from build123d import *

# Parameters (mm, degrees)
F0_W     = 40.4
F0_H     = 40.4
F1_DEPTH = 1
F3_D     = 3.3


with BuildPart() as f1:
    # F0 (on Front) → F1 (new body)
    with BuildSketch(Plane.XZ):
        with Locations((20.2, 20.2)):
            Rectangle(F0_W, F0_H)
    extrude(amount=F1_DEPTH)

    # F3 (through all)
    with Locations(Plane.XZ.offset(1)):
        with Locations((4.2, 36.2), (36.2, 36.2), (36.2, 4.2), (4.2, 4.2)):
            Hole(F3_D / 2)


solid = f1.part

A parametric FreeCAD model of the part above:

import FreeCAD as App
import Part
import Sketcher
from FreeCAD import Vector
Q = App.Units.Quantity

doc = App.newDocument("Part")
body = doc.addObject("PartDesign::Body", "Body")

# Sketch on XZ plane
sketch1 = body.newObject("Sketcher::SketchObject", "Sketch")
sketch1.AttachmentSupport = (doc.getObject("XZ_Plane"), [""])
sketch1.MapMode = "FlatFace"
sketch1.addGeometry([
    Part.LineSegment(Vector(0, 40, 0), Vector(0, 0, 0)),
    Part.LineSegment(Vector(0, 0, 0), Vector(40, 0, 0)),
    Part.LineSegment(Vector(40, 0, 0), Vector(40, 40, 0)),
    Part.LineSegment(Vector(40, 40, 0), Vector(0, 40, 0)),
], False)
sketch1.addConstraint([
    Sketcher.Constraint("Coincident", 0, 2, 1, 1),
    Sketcher.Constraint("Coincident", 1, 2, 2, 1),
    Sketcher.Constraint("Coincident", 2, 2, 3, 1),
    Sketcher.Constraint("Coincident", 3, 2, 0, 1),
    Sketcher.Constraint("Vertical", 0),
    Sketcher.Constraint("Horizontal", 1),
    Sketcher.Constraint("Vertical", 2),
    Sketcher.Constraint("Horizontal", 3),
    Sketcher.Constraint("Coincident", 0, 2, -1, 1),
    Sketcher.Constraint("Equal", 3, 0),
    Sketcher.Constraint("DistanceX", 1, 1, 1, 2, Q("40.4 mm")),
])
pad1 = body.newObject("PartDesign::Pad", "Pad")
pad1.Profile = sketch1
pad1.Length = 1

# Sketch on XZ plane
sketch2 = body.newObject("Sketcher::SketchObject", "Sketch001")
sketch2.AttachmentSupport = (doc.getObject("XZ_Plane"), [""])
sketch2.MapMode = "FlatFace"
sketch2.AttachmentOffset = App.Placement(Vector(0, 0, 1), App.Rotation())
sketch2.addGeometry([
    Part.Circle(Vector(4.2, 36.2, 0), Vector(0, 0, 1), 1.6),
    Part.Circle(Vector(36.2, 36.2, 0), Vector(0, 0, 1), 1.6),
    Part.Circle(Vector(36.2, 4.2, 0), Vector(0, 0, 1), 1.6),
    Part.Circle(Vector(4.2, 4.2, 0), Vector(0, 0, 1), 1.6),
], False)
sketch2.addConstraint([
    Sketcher.Constraint("Equal", 0, 1),
    Sketcher.Constraint("Equal", 1, 2),
    Sketcher.Constraint("Equal", 2, 3),
    Sketcher.Constraint("Horizontal", 0, 3, 1, 3),
    Sketcher.Constraint("Horizontal", 2, 3, 3, 3),
    Sketcher.Constraint("Vertical", 1, 3, 2, 3),
    Sketcher.Constraint("Vertical", 0, 3, 3, 3),
    Sketcher.Constraint("Diameter", 0, Q("3.3 mm")),
    Sketcher.Constraint("DistanceX", 0, 3, 1, 3, Q("32 mm")),
    Sketcher.Constraint("DistanceY", 2, 3, 1, 3, Q("32 mm")),
    Sketcher.Constraint("DistanceX", -1, 1, 0, 3, Q("4.2 mm")),
    Sketcher.Constraint("DistanceY", -1, 1, 0, 3, Q("36.2 mm")),
])
doc.recompute()
hole = body.newObject("PartDesign::Hole", "Hole")
hole.Profile = sketch2
hole.ThreadType = "None"
hole.Diameter = 3.3
hole.DepthType = "ThroughAll"

doc.recompute()
